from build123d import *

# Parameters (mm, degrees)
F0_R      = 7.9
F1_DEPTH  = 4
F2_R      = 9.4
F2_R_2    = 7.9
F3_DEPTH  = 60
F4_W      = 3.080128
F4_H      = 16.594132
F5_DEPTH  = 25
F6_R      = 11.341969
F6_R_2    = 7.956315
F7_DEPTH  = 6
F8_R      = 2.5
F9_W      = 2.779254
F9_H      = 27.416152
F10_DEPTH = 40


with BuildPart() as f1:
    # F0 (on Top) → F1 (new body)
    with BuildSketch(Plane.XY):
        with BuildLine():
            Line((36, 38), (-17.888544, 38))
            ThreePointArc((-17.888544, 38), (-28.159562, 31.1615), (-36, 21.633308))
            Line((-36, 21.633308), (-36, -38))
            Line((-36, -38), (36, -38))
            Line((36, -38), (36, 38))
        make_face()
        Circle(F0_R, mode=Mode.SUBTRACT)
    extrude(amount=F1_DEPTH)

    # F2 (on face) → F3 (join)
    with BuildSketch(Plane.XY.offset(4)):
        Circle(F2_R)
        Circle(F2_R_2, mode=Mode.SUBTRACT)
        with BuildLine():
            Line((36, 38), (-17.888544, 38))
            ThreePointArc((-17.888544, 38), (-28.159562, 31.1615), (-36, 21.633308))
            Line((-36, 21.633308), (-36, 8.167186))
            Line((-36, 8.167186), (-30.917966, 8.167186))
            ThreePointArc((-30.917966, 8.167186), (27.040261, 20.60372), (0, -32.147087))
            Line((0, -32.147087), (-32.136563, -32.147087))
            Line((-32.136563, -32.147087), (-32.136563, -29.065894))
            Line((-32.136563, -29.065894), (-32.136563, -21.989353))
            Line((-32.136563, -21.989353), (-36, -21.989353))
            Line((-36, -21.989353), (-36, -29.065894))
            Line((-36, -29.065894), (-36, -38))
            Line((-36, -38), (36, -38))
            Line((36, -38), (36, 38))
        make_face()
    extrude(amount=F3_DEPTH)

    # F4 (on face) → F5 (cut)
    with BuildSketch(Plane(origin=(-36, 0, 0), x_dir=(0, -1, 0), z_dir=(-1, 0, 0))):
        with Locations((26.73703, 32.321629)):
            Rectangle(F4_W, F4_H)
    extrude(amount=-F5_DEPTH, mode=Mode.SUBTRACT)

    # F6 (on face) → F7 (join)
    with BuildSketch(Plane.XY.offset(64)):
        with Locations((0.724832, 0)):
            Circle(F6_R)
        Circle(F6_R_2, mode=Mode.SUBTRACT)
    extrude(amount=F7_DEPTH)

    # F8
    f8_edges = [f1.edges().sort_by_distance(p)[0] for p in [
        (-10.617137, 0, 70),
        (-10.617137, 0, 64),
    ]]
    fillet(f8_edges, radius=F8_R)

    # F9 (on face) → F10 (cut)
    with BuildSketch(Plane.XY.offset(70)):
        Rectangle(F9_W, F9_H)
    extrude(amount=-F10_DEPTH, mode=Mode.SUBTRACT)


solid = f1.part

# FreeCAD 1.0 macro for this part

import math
import FreeCAD as App
import Part
import Sketcher

V = App.Vector
Q = App.Units.Quantity


def edges_at(feature, points):
    """Names of the edges that pass closest to the given points."""
    edges = feature.Shape.Edges
    near = lambda p: min(range(len(edges)), key=lambda i: edges[i].distToShape(Part.Vertex(*p))[0])
    return sorted({f"Edge{near(p) + 1}" for p in points})

doc = App.newDocument("Part")
params = doc.addObject("Spreadsheet::Sheet", "Params")
for row, (alias, value) in enumerate([
    ("sketch1_radius", "41.999999 mm"),
    ("sketch1_diameter", "15.8 mm"),
    ("sketch1_width", "72 mm"),
    ("sketch1_height", "76 mm"),
    ("pad1_length", "4 mm"),
    ("sketch2_radius", "41.999999 mm"),
    ("sketch2_diameter", "18.8 mm"),
    ("sketch2_diameter2", "15.8 mm"),
    ("sketch2_width", "72 mm"),
    ("sketch2_height", "76 mm"),
    ("pad2_length", "60 mm"),
    ("pocket1_length", "25 mm"),
    ("pad3_length", "6 mm"),
    ("fillet_radius", "2.5 mm"),
    ("pocket2_length", "40 mm"),
], start=1):
    params.set(f"A{row}", alias)
    params.set(f"B{row}", "=" + value)
    params.setAlias(f"B{row}", alias)

body = doc.addObject("PartDesign::Body", "Body")

# Sketch on XY plane
sketch1 = body.newObject("Sketcher::SketchObject", "Sketch")
sketch1.AttachmentSupport = (doc.getObject("XY_Plane"), [""])
sketch1.MapMode = "FlatFace"
sketch1.addGeometry([
    Part.LineSegment(V(36, 38, 0), V(-18, 38, 0)),  # 0
    Part.ArcOfCircle(Part.Circle(V(0, 0, 0), V(0, 0, 1), 42), math.radians(115), math.radians(149)),  # 1
    Part.LineSegment(V(-36, 22, 0), V(-36, -38, 0)),  # 2
    Part.LineSegment(V(-36, -38, 0), V(36, -38, 0)),  # 3
    Part.LineSegment(V(36, -38, 0), V(36, 38, 0)),  # 4
    Part.Circle(V(0, 0, 0), V(0, 0, 1), 8),  # 5
], False)
sketch1.addConstraint([
    Sketcher.Constraint("Coincident", 0, 2, 1, 1),
    Sketcher.Constraint("Coincident", 1, 2, 2, 1),
    Sketcher.Constraint("Coincident", 2, 2, 3, 1),
    Sketcher.Constraint("Coincident", 3, 2, 4, 1),
    Sketcher.Constraint("Coincident", 4, 2, 0, 1),
    Sketcher.Constraint("Horizontal", 0),
    Sketcher.Constraint("Vertical", 2),
    Sketcher.Constraint("Horizontal", 3),
    Sketcher.Constraint("Vertical", 4),
    Sketcher.Constraint("Coincident", 1, 3, -1, 1),
    Sketcher.Constraint("Coincident", 5, 3, -1, 1),
    Sketcher.Constraint("Symmetric", 2, 2, 4, 2, -1, 1),
    Sketcher.Constraint("Radius", 1, Q("41.999999 mm")),
    Sketcher.Constraint("Diameter", 5, Q("15.8 mm")),
    Sketcher.Constraint("DistanceX", 3, 1, 3, 2, Q("72 mm")),
    Sketcher.Constraint("DistanceY", 4, 1, 4, 2, Q("76 mm")),
])
sketch1.setExpression("Constraints[12]", "Params.sketch1_radius")
sketch1.setExpression("Constraints[13]", "Params.sketch1_diameter")
sketch1.setExpression("Constraints[14]", "Params.sketch1_width")
sketch1.setExpression("Constraints[15]", "Params.sketch1_height")
pad1 = body.newObject("PartDesign::Pad", "Pad")
pad1.Profile = sketch1
pad1.setExpression("Length", "Params.pad1_length")

# Sketch on XY plane
sketch2 = body.newObject("Sketcher::SketchObject", "Sketch001")
sketch2.AttachmentSupport = (doc.getObject("XY_Plane"), [""])
sketch2.MapMode = "FlatFace"
sketch2.AttachmentOffset = App.Placement(V(0, 0, 4), App.Rotation())
sketch2.addGeometry([
    Part.Circle(V(0, 0, 0), V(0, 0, 1), 9.4),  # 0
    Part.Circle(V(0, 0, 0), V(0, 0, 1), 7.9),  # 1
    Part.LineSegment(V(36, 38, 0), V(-17.9, 38, 0)),  # 2
    Part.ArcOfCircle(Part.Circle(V(0, 0, 0), V(0, 0, 1), 42), math.radians(115), math.radians(149)),  # 3
    Part.LineSegment(V(-36, 21.6, 0), V(-36, 8.2, 0)),  # 4
    Part.LineSegment(V(-36, 8.2, 0), V(-30.9, 8.2, 0)),  # 5
    Part.ArcOfCircle(Part.Circle(V(1, 0.6, 0), V(0, 0, 1), 32.8), math.radians(-92), math.radians(167)),  # 6
    Part.LineSegment(V(0, -32.1, 0), V(-32.1, -32.1, 0)),  # 7
    Part.LineSegment(V(-32.1, -32.1, 0), V(-32.1, -22, 0)),  # 8
    Part.LineSegment(V(-32.1, -22, 0), V(-36, -22, 0)),  # 9
    Part.LineSegment(V(-36, -22, 0), V(-36, -38, 0)),  # 10
    Part.LineSegment(V(-36, -38, 0), V(36, -38, 0)),  # 11
    Part.LineSegment(V(36, -38, 0), V(36, 38, 0)),  # 12
], False)
sketch2.addConstraint([
    Sketcher.Constraint("Coincident", 2, 2, 3, 1),
    Sketcher.Constraint("Coincident", 3, 2, 4, 1),
    Sketcher.Constraint("Coincident", 4, 2, 5, 1),
    Sketcher.Constraint("Coincident", 5, 2, 6, 2),
    Sketcher.Constraint("Coincident", 6, 1, 7, 1),
    Sketcher.Constraint("Coincident", 7, 2, 8, 1),
    Sketcher.Constraint("Coincident", 8, 2, 9, 1),
    Sketcher.Constraint("Coincident", 9, 2, 10, 1),
    Sketcher.Constraint("Coincident", 10, 2, 11, 1),
    Sketcher.Constraint("Coincident", 11, 2, 12, 1),
    Sketcher.Constraint("Coincident", 12, 2, 2, 1),
    Sketcher.Constraint("Horizontal", 2),
    Sketcher.Constraint("Vertical", 4),
    Sketcher.Constraint("Horizontal", 5),
    Sketcher.Constraint("Horizontal", 7),
    Sketcher.Constraint("Vertical", 8),
    Sketcher.Constraint("Horizontal", 9),
    Sketcher.Constraint("Vertical", 10),
    Sketcher.Constraint("Horizontal", 11),
    Sketcher.Constraint("Vertical", 12),
    Sketcher.Constraint("Coincident", 0, 3, -1, 1),
    Sketcher.Constraint("Coincident", 1, 3, -1, 1),
    Sketcher.Constraint("Coincident", 3, 3, -1, 1),
    Sketcher.Constraint("Symmetric", 10, 2, 12, 2, -1, 1),
    Sketcher.Constraint("PointOnObject", 6, 1, -2),
    Sketcher.Constraint("Vertical", 4, 2, 9, 2),
    Sketcher.Constraint("Radius", 3, Q("41.999999 mm")),
    Sketcher.Constraint("Diameter", 0, Q("18.8 mm")),
    Sketcher.Constraint("Diameter", 1, Q("15.8 mm")),
    Sketcher.Constraint("DistanceX", 11, 1, 11, 2, Q("72 mm")),
    Sketcher.Constraint("DistanceY", 12, 1, 12, 2, Q("76 mm")),
    Sketcher.Constraint("Radius", 6, Q("32.803486 mm")),
    Sketcher.Constraint("DistanceX", 5, 1, 5, 2, Q("5.082034 mm")),
    Sketcher.Constraint("DistanceX", 7, 2, 7, 1, Q("32.136563 mm")),
    Sketcher.Constraint("DistanceY", 4, 2, 4, 1, Q("13.466122 mm")),
    Sketcher.Constraint("DistanceY", 8, 1, 8, 2, Q("10.157734 mm")),
    Sketcher.Constraint("DistanceY", 10, 2, 10, 1, Q("16.010647 mm")),
])
sketch2.setExpression("Constraints[26]", "Params.sketch2_radius")
sketch2.setExpression("Constraints[27]", "Params.sketch2_diameter")
sketch2.setExpression("Constraints[28]", "Params.sketch2_diameter2")
sketch2.setExpression("Constraints[29]", "Params.sketch2_width")
sketch2.setExpression("Constraints[30]", "Params.sketch2_height")
pad2 = body.newObject("PartDesign::Pad", "Pad001")
pad2.Profile = sketch2
pad2.setExpression("Length", "Params.pad2_length")

# Sketch on YZ plane
sketch3 = body.newObject("Sketcher::SketchObject", "Sketch002")
sketch3.AttachmentSupport = (doc.getObject("YZ_Plane"), [""])
sketch3.MapMode = "FlatFace"
sketch3.AttachmentOffset = App.Placement(V(0, 0, -36), App.Rotation())
sketch3.addGeometry([
    Part.LineSegment(V(-25.2, 40.6, 0), V(-25.2, 24, 0)),
    Part.LineSegment(V(-25.2, 24, 0), V(-28.3, 24, 0)),
    Part.LineSegment(V(-28.3, 24, 0), V(-28.3, 40.6, 0)),
    Part.LineSegment(V(-28.3, 40.6, 0), V(-25.2, 40.6, 0)),
], False)
sketch3.addConstraint([
    Sketcher.Constraint("Coincident", 0, 2, 1, 1),
    Sketcher.Constraint("Coincident", 1, 2, 2, 1),
    Sketcher.Constraint("Coincident", 2, 2, 3, 1),
    Sketcher.Constraint("Coincident", 3, 2, 0, 1),
    Sketcher.Constraint("Vertical", 0),
    Sketcher.Constraint("Horizontal", 1),
    Sketcher.Constraint("Vertical", 2),
    Sketcher.Constraint("Horizontal", 3),
    Sketcher.Constraint("DistanceX", 1, 2, 1, 1, Q("3.080128 mm")),
    Sketcher.Constraint("DistanceY", 0, 2, 0, 1, Q("16.594132 mm")),
    Sketcher.Constraint("DistanceX", 0, 2, -1, 1, Q("25.196966 mm")),
    Sketcher.Constraint("DistanceY", -1, 1, 0, 2, Q("24.024563 mm")),
])
pocket1 = body.newObject("PartDesign::Pocket", "Pocket")
pocket1.Profile = sketch3
pocket1.setExpression("Length", "Params.pocket1_length")
pocket1.Reversed = True

# Sketch on XY plane
sketch4 = body.newObject("Sketcher::SketchObject", "Sketch003")
sketch4.AttachmentSupport = (doc.getObject("XY_Plane"), [""])
sketch4.MapMode = "FlatFace"
sketch4.AttachmentOffset = App.Placement(V(0, 0, 64), App.Rotation())
sketch4.addGeometry([
    Part.Circle(V(1, 0, 0), V(0, 0, 1), 11),
    Part.Circle(V(0, 0, 0), V(0, 0, 1), 8),
], False)
sketch4.addConstraint([
    Sketcher.Constraint("Coincident", 1, 3, -1, 1),
    Sketcher.Constraint("PointOnObject", 0, 3, -1),
    Sketcher.Constraint("Diameter", 0, Q("22.683938 mm")),
    Sketcher.Constraint("Diameter", 1, Q("15.91263 mm")),
    Sketcher.Constraint("DistanceX", -1, 1, 0, 3, Q("0.724832 mm")),
])
pad3 = body.newObject("PartDesign::Pad", "Pad002")
pad3.Profile = sketch4
pad3.setExpression("Length", "Params.pad3_length")
doc.recompute()

fillet = body.newObject("PartDesign::Fillet", "Fillet")
fillet.Base = (pad3, edges_at(pad3, [(-10.617, 0, 70), (-10.617, 0, 64)]))
fillet.setExpression("Radius", "Params.fillet_radius")

# Sketch on XY plane
sketch5 = body.newObject("Sketcher::SketchObject", "Sketch004")
sketch5.AttachmentSupport = (doc.getObject("XY_Plane"), [""])
sketch5.MapMode = "FlatFace"
sketch5.AttachmentOffset = App.Placement(V(0, 0, 70), App.Rotation())
sketch5.addGeometry([
    Part.LineSegment(V(-1.4, 13.7, 0), V(-1.4, -13.7, 0)),
    Part.LineSegment(V(-1.4, -13.7, 0), V(1.4, -13.7, 0)),
    Part.LineSegment(V(1.4, -13.7, 0), V(1.4, 13.7, 0)),
    Part.LineSegment(V(1.4, 13.7, 0), V(-1.4, 13.7, 0)),
], False)
sketch5.addConstraint([
    Sketcher.Constraint("Coincident", 0, 2, 1, 1),
    Sketcher.Constraint("Coincident", 1, 2, 2, 1),
    Sketcher.Constraint("Coincident", 2, 2, 3, 1),
    Sketcher.Constraint("Coincident", 3, 2, 0, 1),
    Sketcher.Constraint("Vertical", 0),
    Sketcher.Constraint("Horizontal", 1),
    Sketcher.Constraint("Vertical", 2),
    Sketcher.Constraint("Horizontal", 3),
    Sketcher.Constraint("Symmetric", 0, 2, 2, 2, -1, 1),
    Sketcher.Constraint("DistanceX", 1, 1, 1, 2, Q("2.779254 mm")),
    Sketcher.Constraint("DistanceY", 0, 2, 0, 1, Q("27.416152 mm")),
])
pocket2 = body.newObject("PartDesign::Pocket", "Pocket001")
pocket2.Profile = sketch5
pocket2.setExpression("Length", "Params.pocket2_length")

doc.recompute()
